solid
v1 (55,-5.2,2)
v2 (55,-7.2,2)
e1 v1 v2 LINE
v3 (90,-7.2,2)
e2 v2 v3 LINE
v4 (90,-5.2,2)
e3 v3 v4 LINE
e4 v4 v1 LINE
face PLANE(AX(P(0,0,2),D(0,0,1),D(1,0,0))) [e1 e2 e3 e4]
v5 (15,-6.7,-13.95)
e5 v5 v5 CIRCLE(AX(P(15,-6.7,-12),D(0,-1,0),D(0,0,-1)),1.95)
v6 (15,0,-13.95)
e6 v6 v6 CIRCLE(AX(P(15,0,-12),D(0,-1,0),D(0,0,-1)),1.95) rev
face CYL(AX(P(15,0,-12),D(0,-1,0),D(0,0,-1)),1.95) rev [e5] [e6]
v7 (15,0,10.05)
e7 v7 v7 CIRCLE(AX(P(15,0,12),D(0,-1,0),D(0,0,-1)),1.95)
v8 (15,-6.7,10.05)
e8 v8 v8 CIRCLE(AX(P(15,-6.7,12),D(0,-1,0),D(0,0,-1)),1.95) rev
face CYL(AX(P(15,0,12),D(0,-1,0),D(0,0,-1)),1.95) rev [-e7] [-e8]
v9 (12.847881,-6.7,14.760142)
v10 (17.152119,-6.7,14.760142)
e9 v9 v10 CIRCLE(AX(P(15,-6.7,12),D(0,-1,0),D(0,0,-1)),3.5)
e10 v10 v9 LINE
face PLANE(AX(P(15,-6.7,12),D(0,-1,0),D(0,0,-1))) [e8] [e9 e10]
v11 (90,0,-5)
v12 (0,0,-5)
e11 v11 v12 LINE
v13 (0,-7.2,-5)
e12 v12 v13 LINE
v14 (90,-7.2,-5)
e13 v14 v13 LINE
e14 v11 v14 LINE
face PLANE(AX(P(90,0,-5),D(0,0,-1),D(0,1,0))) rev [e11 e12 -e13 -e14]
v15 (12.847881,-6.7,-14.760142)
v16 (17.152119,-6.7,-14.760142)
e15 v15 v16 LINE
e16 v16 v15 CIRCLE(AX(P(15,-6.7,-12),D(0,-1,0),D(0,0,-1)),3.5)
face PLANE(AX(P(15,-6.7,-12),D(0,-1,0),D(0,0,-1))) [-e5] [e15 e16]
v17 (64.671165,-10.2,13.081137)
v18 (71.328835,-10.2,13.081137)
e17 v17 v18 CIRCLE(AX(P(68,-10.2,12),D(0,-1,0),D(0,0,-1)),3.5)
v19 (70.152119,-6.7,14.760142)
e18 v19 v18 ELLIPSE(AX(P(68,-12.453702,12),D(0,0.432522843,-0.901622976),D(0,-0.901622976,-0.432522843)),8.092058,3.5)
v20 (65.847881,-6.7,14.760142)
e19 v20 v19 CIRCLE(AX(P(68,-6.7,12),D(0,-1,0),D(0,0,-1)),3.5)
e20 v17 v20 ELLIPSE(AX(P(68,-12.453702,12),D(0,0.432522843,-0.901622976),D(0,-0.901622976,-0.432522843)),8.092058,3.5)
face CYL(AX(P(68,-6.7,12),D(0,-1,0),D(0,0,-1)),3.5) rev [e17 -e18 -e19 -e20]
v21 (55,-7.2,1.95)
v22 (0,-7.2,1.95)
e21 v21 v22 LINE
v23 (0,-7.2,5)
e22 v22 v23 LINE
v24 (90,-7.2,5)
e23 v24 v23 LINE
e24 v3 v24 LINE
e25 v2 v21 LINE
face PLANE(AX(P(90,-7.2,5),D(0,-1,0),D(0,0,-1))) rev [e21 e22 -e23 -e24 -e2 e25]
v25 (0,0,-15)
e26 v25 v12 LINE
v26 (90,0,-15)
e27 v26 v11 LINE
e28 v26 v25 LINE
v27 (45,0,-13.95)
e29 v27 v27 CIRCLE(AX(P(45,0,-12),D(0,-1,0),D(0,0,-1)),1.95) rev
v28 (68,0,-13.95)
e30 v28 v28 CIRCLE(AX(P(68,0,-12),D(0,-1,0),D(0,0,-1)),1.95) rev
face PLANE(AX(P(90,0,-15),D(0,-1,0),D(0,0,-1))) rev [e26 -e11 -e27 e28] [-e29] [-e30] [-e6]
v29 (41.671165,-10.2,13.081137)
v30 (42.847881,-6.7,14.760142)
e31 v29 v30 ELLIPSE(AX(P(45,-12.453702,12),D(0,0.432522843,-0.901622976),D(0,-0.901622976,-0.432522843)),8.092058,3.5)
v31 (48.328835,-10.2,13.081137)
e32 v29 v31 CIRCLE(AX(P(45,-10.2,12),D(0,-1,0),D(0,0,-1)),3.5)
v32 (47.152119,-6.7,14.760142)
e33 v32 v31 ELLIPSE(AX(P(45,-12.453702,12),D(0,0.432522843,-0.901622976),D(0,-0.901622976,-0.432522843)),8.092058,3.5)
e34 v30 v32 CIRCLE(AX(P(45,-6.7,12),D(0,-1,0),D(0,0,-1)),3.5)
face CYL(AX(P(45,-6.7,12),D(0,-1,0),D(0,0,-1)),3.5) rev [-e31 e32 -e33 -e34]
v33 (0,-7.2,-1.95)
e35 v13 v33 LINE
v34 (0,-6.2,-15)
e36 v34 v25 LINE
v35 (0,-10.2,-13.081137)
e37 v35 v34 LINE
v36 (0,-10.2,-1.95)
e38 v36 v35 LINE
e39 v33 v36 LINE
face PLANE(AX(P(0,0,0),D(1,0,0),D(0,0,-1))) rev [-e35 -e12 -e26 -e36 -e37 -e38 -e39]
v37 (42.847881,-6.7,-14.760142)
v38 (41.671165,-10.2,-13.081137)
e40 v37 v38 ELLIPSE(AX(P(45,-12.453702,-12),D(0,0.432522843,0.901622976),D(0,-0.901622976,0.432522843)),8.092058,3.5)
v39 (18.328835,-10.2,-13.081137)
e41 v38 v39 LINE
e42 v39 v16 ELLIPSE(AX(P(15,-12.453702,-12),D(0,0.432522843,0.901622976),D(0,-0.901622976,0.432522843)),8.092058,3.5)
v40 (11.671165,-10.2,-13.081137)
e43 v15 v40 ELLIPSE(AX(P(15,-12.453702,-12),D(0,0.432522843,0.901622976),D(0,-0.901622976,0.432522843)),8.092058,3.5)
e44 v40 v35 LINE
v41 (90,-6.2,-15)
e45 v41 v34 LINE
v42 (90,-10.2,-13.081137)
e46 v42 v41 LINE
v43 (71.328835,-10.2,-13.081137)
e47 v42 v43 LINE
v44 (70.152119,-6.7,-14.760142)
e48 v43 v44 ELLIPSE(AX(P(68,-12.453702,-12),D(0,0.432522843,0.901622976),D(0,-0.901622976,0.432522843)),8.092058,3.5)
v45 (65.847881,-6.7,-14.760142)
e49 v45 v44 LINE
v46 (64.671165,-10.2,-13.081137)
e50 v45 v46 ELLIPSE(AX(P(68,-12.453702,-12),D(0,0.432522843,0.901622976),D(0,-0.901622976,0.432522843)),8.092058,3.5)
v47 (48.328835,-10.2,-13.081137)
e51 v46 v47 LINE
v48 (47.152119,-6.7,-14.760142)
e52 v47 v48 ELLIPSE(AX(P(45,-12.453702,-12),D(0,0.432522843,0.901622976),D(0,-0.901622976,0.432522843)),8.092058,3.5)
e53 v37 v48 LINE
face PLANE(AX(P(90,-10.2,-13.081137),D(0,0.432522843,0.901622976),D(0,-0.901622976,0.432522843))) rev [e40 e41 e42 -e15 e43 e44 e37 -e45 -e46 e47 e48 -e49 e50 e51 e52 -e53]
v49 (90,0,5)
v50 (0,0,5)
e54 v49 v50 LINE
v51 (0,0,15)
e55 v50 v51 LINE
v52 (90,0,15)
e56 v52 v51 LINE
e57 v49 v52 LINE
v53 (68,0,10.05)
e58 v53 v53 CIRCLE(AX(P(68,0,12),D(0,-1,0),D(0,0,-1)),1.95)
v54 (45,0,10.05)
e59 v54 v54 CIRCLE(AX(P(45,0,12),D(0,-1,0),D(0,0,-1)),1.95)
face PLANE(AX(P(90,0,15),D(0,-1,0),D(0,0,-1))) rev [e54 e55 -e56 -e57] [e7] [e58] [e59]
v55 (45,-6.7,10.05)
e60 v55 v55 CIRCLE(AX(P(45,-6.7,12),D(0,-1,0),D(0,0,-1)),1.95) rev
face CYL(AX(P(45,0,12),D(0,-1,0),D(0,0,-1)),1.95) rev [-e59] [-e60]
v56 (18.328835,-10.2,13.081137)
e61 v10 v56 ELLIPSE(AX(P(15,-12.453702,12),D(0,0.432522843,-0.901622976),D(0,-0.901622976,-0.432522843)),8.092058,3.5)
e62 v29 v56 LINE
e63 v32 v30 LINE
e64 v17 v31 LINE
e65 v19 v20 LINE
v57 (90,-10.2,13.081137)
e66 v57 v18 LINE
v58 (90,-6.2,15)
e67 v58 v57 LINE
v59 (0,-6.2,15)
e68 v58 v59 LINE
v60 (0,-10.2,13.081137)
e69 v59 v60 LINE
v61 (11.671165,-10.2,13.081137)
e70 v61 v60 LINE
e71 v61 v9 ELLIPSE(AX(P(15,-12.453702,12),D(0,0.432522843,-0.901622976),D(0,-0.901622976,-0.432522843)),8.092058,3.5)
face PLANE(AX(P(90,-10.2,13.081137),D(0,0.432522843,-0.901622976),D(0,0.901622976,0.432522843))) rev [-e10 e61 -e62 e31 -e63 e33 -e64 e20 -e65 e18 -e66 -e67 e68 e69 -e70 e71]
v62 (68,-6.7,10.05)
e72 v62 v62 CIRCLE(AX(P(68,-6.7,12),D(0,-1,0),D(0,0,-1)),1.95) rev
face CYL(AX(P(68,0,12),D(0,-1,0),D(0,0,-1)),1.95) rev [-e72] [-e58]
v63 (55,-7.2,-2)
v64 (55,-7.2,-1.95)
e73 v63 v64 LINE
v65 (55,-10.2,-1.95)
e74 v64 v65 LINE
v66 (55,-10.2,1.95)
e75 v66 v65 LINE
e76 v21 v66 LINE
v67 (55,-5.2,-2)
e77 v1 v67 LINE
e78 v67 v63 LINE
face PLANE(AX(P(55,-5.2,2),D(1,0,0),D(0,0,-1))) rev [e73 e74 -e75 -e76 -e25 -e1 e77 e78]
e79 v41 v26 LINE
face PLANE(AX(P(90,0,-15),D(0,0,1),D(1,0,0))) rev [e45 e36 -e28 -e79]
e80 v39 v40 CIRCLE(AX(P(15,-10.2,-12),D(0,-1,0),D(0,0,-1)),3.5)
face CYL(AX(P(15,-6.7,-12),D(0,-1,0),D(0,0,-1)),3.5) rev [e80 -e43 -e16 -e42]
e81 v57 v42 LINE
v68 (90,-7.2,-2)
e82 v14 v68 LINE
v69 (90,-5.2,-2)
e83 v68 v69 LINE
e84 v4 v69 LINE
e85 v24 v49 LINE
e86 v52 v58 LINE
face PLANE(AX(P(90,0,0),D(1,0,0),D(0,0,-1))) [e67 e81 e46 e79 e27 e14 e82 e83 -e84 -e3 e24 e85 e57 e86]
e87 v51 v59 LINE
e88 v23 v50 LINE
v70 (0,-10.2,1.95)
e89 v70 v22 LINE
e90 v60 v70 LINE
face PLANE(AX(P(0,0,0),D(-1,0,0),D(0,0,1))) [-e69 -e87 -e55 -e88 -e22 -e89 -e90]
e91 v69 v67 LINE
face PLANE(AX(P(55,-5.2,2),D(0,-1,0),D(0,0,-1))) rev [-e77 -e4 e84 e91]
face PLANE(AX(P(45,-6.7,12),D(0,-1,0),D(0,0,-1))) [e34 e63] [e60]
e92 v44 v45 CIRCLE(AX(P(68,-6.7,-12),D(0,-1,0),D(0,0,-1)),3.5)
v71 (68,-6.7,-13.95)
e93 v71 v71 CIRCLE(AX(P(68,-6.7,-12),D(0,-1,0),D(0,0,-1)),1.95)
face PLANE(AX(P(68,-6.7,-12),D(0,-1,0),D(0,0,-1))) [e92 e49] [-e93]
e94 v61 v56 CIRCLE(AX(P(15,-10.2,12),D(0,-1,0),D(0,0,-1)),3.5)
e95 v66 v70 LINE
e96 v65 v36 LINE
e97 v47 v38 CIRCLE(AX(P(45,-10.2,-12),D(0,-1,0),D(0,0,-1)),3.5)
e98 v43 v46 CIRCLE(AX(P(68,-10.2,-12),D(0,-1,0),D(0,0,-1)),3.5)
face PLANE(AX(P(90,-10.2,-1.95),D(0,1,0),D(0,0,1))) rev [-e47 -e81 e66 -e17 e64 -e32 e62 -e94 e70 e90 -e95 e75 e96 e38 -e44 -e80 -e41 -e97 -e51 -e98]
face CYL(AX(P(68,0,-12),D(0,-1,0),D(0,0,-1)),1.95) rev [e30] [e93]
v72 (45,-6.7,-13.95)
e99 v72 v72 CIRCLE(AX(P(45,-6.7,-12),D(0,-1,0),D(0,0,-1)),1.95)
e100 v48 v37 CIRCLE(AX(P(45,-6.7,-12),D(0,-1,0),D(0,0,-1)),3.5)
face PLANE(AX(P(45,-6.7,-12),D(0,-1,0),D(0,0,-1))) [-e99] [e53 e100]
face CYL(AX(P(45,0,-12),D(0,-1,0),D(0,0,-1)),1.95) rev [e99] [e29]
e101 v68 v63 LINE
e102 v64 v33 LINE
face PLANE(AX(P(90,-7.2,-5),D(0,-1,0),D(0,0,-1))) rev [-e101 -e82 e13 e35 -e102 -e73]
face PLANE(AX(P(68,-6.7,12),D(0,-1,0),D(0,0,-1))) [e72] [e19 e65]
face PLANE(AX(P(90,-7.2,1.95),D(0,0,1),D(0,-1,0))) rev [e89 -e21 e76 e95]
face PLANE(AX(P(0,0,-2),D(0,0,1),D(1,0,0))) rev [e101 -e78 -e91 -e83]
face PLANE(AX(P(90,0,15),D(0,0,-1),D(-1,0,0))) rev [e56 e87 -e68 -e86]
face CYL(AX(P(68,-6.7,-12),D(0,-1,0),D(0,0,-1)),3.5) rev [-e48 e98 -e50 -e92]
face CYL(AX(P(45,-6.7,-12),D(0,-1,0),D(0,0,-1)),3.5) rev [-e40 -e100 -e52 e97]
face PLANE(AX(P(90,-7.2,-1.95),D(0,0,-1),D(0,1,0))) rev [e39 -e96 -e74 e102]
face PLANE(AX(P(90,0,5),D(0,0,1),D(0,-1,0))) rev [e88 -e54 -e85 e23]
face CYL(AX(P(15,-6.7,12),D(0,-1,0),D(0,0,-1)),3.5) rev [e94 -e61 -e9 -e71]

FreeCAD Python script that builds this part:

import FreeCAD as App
import Part
import Sketcher
from FreeCAD import Vector
Q = App.Units.Quantity


def add_polygon(sketch, points):
    """Adds a closed chain of lines whose ends are joined by coincident constraints."""
    first, n = sketch.GeometryCount, len(points)
    for a, b in zip(points, points[1:] + points[:1]):
        sketch.addGeometry(Part.LineSegment(App.Vector(*a, 0), App.Vector(*b, 0)), False)
    for i in range(n):
        sketch.addConstraint(Sketcher.Constraint("Coincident", first + i, 2, first + (i + 1) % n, 1))

doc = App.newDocument("Part")
body = doc.addObject("PartDesign::Body", "Body")

sketch1 = doc.addObject("Sketcher::SketchObject", "Sketch")
body.addObject(sketch1)
sketch1.AttachmentSupport = (doc.YZ_Plane, [""])
sketch1.MapMode = "FlatFace"
add_polygon(sketch1, [(0, 15), (-6.2, 15), (-10.2, 13.1), (-10.2, 1.9), (-7.2, 1.9), (-7.2, 5), (0, 5)])
sketch1.addConstraint([
    Sketcher.Constraint("Horizontal", 0),
    Sketcher.Constraint("Vertical", 2),
    Sketcher.Constraint("Horizontal", 3),
    Sketcher.Constraint("Vertical", 4),
    Sketcher.Constraint("Horizontal", 5),
    Sketcher.Constraint("Vertical", 6),
    Sketcher.Constraint("PointOnObject", 5, 2, -2),
    Sketcher.Constraint("DistanceX", 3, 1, 3, 2, Q("3 mm")),
    Sketcher.Constraint("DistanceY", 6, 1, 6, 2, Q("10 mm")),
    Sketcher.Constraint("DistanceX", 0, 2, 0, 1, Q("6.2 mm")),
    Sketcher.Constraint("DistanceX", 5, 1, 5, 2, Q("7.2 mm")),
    Sketcher.Constraint("DistanceY", -1, 1, 0, 2, Q("15 mm")),
    Sketcher.Constraint("DistanceY", 4, 1, 4, 2, Q("3.05 mm")),
    Sketcher.Constraint("DistanceY", 2, 2, 2, 1, Q("11.131137 mm")),
])
pad1 = doc.addObject("PartDesign::Pad", "Pad")
body.addObject(pad1)
pad1.Profile = sketch1
pad1.Length = 90
body2 = doc.addObject("PartDesign::Body", "Body001")

sketch2 = doc.addObject("Sketcher::SketchObject", "Sketch001")
body2.addObject(sketch2)
sketch2.AttachmentSupport = (doc.getObject("YZ_Plane001"), [""])
sketch2.MapMode = "FlatFace"
add_polygon(sketch2, [(-10.2, -13.1), (-6.2, -15), (0, -15), (0, -5), (-7.2, -5), (-7.2, -1.9), (-10.2, -1.9)])
sketch2.addConstraint([
    Sketcher.Constraint("Horizontal", 1),
    Sketcher.Constraint("Vertical", 2),
    Sketcher.Constraint("Horizontal", 3),
    Sketcher.Constraint("Vertical", 4),
    Sketcher.Constraint("Horizontal", 5),
    Sketcher.Constraint("Vertical", 6),
    Sketcher.Constraint("PointOnObject", 1, 2, -2),
    Sketcher.Constraint("DistanceX", 5, 2, 5, 1, Q("3 mm")),
    Sketcher.Constraint("DistanceY", 2, 1, 2, 2, Q("10 mm")),
    Sketcher.Constraint("DistanceX", 1, 1, 1, 2, Q("6.2 mm")),
    Sketcher.Constraint("DistanceX", 3, 2, 3, 1, Q("7.2 mm")),
    Sketcher.Constraint("DistanceY", 0, 2, -1, 1, Q("15 mm")),
    Sketcher.Constraint("DistanceY", 4, 1, 4, 2, Q("3.05 mm")),
    Sketcher.Constraint("DistanceY", 6, 2, 6, 1, Q("11.131137 mm")),
])
pad2 = doc.addObject("PartDesign::Pad", "Pad001")
body2.addObject(pad2)
pad2.Profile = sketch2
pad2.Length = 90
body3 = doc.addObject("PartDesign::Body", "Body002")
body3.AllowCompound = True

sketch3 = doc.addObject("Sketcher::SketchObject", "Sketch002")
body3.addObject(sketch3)
sketch3.AttachmentSupport = (doc.getObject("XZ_Plane002"), [""])
sketch3.MapMode = "FlatFace"
sketch3.AttachmentOffset = App.Placement(Vector(0, 0, 10.2), App.Rotation())
sketch3.addGeometry([
    Part.Circle(Vector(15, 12, 0), Vector(0, 0, 1), 1.9),
    Part.Circle(Vector(45, 12, 0), Vector(0, 0, 1), 1.9),
    Part.Circle(Vector(68, 12, 0), Vector(0, 0, 1), 1.9),
    Part.Circle(Vector(68, -12, 0), Vector(0, 0, 1), 1.9),
    Part.Circle(Vector(45, -12, 0), Vector(0, 0, 1), 1.9),
    Part.Circle(Vector(15, -12, 0), Vector(0, 0, 1), 1.9),
], False)
sketch3.addConstraint([
    Sketcher.Constraint("Equal", 0, 1),
    Sketcher.Constraint("Equal", 1, 2),
    Sketcher.Constraint("Equal", 2, 3),
    Sketcher.Constraint("Equal", 3, 4),
    Sketcher.Constraint("Equal", 4, 5),
    Sketcher.Constraint("Symmetric", 2, 3, 3, 3, -1),
    Sketcher.Constraint("Symmetric", 1, 3, 4, 3, -1),
    Sketcher.Constraint("Symmetric", 0, 3, 5, 3, -1),
    Sketcher.Constraint("Horizontal", 0, 3, 1, 3),
    Sketcher.Constraint("Horizontal", 1, 3, 2, 3),
    Sketcher.Constraint("Diameter", 0, Q("3.9 mm")),
    Sketcher.Constraint("DistanceX", -1, 1, 0, 3, Q("15 mm")),
    Sketcher.Constraint("DistanceY", -1, 1, 0, 3, Q("12 mm")),
    Sketcher.Constraint("DistanceX", -1, 1, 1, 3, Q("45 mm")),
    Sketcher.Constraint("DistanceX", -1, 1, 2, 3, Q("68 mm")),
])
pad3 = doc.addObject("PartDesign::Pad", "Pad002")
body3.addObject(pad3)
pad3.Profile = sketch3
pad3.Length = 92.809803
pad3.Reversed = True
doc.recompute()

body4 = doc.addObject("PartDesign::Body", "Body003")
body4.BaseFeature = body3
boolean = doc.addObject("PartDesign::Boolean", "Boolean")
body.addObject(boolean)
boolean.Type = "Cut"
boolean.addObjects([body4])
doc.recompute()

boolean2 = doc.addObject("PartDesign::Boolean", "Boolean001")
body2.addObject(boolean2)
boolean2.Type = "Cut"
boolean2.addObjects([body3])
body.AllowCompound = True
doc.recompute()

boolean3 = doc.addObject("PartDesign::Boolean", "Boolean002")
body.addObject(boolean3)
boolean3.Type = "Fuse"
boolean3.addObjects([body2])

sketch4 = doc.addObject("Sketcher::SketchObject", "Sketch003")
body.addObject(sketch4)
sketch4.AttachmentSupport = (doc.XY_Plane, [""])
sketch4.MapMode = "FlatFace"
add_polygon(sketch4, [(55, -5.2), (55, -10.2), (90, -10.2), (90, -5.2)])
sketch4.addConstraint([
    Sketcher.Constraint("Vertical", 0),
    Sketcher.Constraint("Horizontal", 1),
    Sketcher.Constraint("Vertical", 2),
    Sketcher.Constraint("Horizontal", 3),
    Sketcher.Constraint("DistanceX", 1, 1, 1, 2, Q("35 mm")),
    Sketcher.Constraint("DistanceY", 0, 2, 0, 1, Q("5 mm")),
    Sketcher.Constraint("DistanceX", -1, 1, 0, 2, Q("55 mm")),
    Sketcher.Constraint("DistanceY", 0, 2, -1, 1, Q("10.2 mm")),
])
pad4 = doc.addObject("PartDesign::Pad", "Pad003")
body.addObject(pad4)
pad4.Profile = sketch4
pad4.Length = 4
pad4.Midplane = True

sketch5 = doc.addObject("Sketcher::SketchObject", "Sketch004")
body.addObject(sketch5)
sketch5.AttachmentSupport = (doc.XZ_Plane, [""])
sketch5.MapMode = "FlatFace"
sketch5.AttachmentOffset = App.Placement(Vector(0, 0, 10.2), App.Rotation())
sketch5.addGeometry([
    Part.Circle(Vector(15, -12, 0), Vector(0, 0, 1), 3.5),
    Part.Circle(Vector(45, -12, 0), Vector(0, 0, 1), 3.5),
    Part.Circle(Vector(68, -12, 0), Vector(0, 0, 1), 3.5),
    Part.Circle(Vector(45, 12, 0), Vector(0, 0, 1), 3.5),
    Part.Circle(Vector(68, 12, 0), Vector(0, 0, 1), 3.5),
    Part.Circle(Vector(15, 12, 0), Vector(0, 0, 1), 3.5),
], False)
sketch5.addConstraint([
    Sketcher.Constraint("Equal", 0, 1),
    Sketcher.Constraint("Equal", 1, 2),
    Sketcher.Constraint("Equal", 2, 3),
    Sketcher.Constraint("Equal", 3, 4),
    Sketcher.Constraint("Equal", 4, 5),
    Sketcher.Constraint("Symmetric", 1, 3, 3, 3, -1),
    Sketcher.Constraint("Symmetric", 2, 3, 4, 3, -1),
    Sketcher.Constraint("Symmetric", 0, 3, 5, 3, -1),
    Sketcher.Constraint("Horizontal", 0, 3, 1, 3),
    Sketcher.Constraint("Horizontal", 1, 3, 2, 3),
    Sketcher.Constraint("Diameter", 0, Q("7 mm")),
    Sketcher.Constraint("DistanceX", -1, 1, 0, 3, Q("15 mm")),
    Sketcher.Constraint("DistanceY", 0, 3, -1, 1, Q("12 mm")),
    Sketcher.Constraint("DistanceX", -1, 1, 1, 3, Q("45 mm")),
    Sketcher.Constraint("DistanceX", -1, 1, 2, 3, Q("68 mm")),
])
pocket1 = doc.addObject("PartDesign::Pocket", "Pocket")
body.addObject(pocket1)
pocket1.Profile = sketch5
pocket1.Length = 3.5

doc.recompute()
